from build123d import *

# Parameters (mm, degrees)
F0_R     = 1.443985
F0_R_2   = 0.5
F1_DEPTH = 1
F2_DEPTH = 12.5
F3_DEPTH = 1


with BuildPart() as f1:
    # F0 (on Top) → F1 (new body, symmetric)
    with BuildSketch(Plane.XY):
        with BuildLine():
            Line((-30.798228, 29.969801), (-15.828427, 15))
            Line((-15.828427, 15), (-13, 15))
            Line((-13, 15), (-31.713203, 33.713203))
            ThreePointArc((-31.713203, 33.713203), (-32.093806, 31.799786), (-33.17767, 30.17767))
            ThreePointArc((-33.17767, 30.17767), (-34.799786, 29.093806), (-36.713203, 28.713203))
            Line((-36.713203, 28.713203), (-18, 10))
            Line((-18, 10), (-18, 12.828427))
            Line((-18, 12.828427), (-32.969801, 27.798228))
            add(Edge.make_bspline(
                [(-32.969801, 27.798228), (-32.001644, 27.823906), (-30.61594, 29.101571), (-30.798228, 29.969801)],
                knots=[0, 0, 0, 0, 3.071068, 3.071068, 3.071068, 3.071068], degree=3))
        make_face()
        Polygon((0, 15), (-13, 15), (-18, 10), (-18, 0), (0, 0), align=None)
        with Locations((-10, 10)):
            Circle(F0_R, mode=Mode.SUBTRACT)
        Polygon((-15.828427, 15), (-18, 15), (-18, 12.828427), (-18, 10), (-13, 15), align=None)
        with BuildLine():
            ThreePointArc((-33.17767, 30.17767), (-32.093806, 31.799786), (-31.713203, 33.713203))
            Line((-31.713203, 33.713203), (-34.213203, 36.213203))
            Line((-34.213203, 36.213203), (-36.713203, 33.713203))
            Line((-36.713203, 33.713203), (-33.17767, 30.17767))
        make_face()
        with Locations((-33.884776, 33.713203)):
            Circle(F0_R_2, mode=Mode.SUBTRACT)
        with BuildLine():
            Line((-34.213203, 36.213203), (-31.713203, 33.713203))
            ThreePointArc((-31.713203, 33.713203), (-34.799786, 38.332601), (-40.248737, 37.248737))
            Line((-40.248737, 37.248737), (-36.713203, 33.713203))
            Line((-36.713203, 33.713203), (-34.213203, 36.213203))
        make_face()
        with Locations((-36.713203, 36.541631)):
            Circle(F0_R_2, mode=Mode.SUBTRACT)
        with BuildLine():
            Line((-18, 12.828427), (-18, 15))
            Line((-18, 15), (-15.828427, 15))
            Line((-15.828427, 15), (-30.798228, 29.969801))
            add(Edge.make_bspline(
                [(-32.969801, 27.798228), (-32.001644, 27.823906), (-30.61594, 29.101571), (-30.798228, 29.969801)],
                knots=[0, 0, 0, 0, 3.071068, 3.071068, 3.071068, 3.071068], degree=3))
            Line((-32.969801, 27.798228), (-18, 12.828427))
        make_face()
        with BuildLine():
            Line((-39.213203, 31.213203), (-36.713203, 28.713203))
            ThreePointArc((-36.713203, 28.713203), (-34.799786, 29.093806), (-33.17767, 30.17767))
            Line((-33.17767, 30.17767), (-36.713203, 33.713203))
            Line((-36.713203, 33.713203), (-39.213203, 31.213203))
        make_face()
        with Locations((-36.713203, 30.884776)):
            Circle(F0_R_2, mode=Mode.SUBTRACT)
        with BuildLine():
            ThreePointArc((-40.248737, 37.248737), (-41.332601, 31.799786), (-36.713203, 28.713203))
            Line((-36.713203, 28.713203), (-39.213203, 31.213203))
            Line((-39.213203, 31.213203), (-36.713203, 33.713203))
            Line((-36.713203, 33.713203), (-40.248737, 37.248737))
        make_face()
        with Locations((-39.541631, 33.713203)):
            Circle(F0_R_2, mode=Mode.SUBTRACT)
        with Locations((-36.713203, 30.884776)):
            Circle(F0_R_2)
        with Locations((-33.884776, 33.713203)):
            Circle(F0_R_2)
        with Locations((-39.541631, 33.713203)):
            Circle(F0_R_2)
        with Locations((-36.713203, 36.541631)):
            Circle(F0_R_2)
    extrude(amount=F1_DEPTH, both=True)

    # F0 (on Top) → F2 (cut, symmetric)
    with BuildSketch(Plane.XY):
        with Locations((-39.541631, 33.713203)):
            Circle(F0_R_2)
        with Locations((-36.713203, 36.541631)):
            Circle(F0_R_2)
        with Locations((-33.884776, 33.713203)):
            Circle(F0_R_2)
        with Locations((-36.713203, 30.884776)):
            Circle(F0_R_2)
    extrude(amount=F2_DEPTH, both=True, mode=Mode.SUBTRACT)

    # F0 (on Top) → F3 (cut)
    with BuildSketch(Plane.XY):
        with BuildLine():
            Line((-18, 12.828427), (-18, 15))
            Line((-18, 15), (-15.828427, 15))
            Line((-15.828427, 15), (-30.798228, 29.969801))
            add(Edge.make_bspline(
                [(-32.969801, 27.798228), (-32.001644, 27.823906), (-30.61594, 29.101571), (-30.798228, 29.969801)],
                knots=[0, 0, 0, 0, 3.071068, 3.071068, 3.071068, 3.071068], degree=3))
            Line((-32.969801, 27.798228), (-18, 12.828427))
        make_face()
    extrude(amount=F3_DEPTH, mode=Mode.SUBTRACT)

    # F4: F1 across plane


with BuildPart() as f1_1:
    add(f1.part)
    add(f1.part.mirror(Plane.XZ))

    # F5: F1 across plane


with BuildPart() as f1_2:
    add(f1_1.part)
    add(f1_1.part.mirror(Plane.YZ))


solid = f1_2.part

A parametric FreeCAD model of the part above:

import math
import FreeCAD as App
import Part
import Sketcher
from FreeCAD import Vector
Q = App.Units.Quantity

doc = App.newDocument("Part")
params = doc.addObject("Spreadsheet::Sheet", "Params")
for row, (alias, value) in enumerate([
    ("sketch1_radius", "5 mm"),
    ("sketch1_width", "18 mm"),
    ("sketch1_height", "10 mm"),
    ("pad1_length", "2 mm"),
    ("sketch2_diameter", "1 mm"),
    ("pocket1_length", "25 mm"),
    ("pocket2_length", "1 mm"),
], start=1):
    params.set(f"A{row}", alias)
    params.set(f"B{row}", "=" + value)
    params.setAlias(f"B{row}", alias)

body = doc.addObject("PartDesign::Body", "Body")

# Sketch on XY plane
sketch1 = body.newObject("Sketcher::SketchObject", "Sketch")
sketch1.AttachmentSupport = (doc.getObject("XY_Plane"), [""])
sketch1.MapMode = "FlatFace"
sketch1.addGeometry(Part.LineSegment(Vector(-13, 15, 0), Vector(-31.713203, 33.713203, 0)), False)
sketch1.addGeometry(Part.ArcOfCircle(Part.Circle(Vector(-36.713203, 33.713203, 0), Vector(0, 0, 1), 5), math.radians(-0.000003), math.radians(135.000003)), False)
sketch1.addGeometry(Part.ArcOfCircle(Part.Circle(Vector(-36.713203, 33.713203, 0), Vector(0, 0, 1), 5), math.radians(134.999997), math.radians(270.000003)), False)
sketch1.addGeometry(Part.LineSegment(Vector(-36.713203, 28.713203, 0), Vector(-18, 10, 0)), False)
sketch1.addGeometry(Part.LineSegment(Vector(-18, 10, 0), Vector(-18, 0, 0)), False)
sketch1.addGeometry(Part.LineSegment(Vector(-18, 0, 0), Vector(0, 0, 0)), False)
sketch1.addGeometry(Part.LineSegment(Vector(0, 0, 0), Vector(0, 15, 0)), False)
sketch1.addGeometry(Part.LineSegment(Vector(0, 15, 0), Vector(-13, 15, 0)), False)
sketch1.addGeometry(Part.Circle(Vector(-10, 10, 0), Vector(0, 0, 1), 1.443985), False)
sketch1.addConstraint(Sketcher.Constraint("Coincident", 0, 2, 1, 1))
sketch1.addConstraint(Sketcher.Constraint("Tangent", 1, 2, 2, 1))
sketch1.addConstraint(Sketcher.Constraint("Coincident", 2, 2, 3, 1))
sketch1.addConstraint(Sketcher.Constraint("Coincident", 3, 2, 4, 1))
sketch1.addConstraint(Sketcher.Constraint("Coincident", 4, 2, 5, 1))
sketch1.addConstraint(Sketcher.Constraint("Coincident", 5, 2, 6, 1))
sketch1.addConstraint(Sketcher.Constraint("Coincident", 6, 2, 7, 1))
sketch1.addConstraint(Sketcher.Constraint("Coincident", 7, 2, 0, 1))
sketch1.addConstraint(Sketcher.Constraint("Vertical", 4))
sketch1.addConstraint(Sketcher.Constraint("Horizontal", 5))
sketch1.addConstraint(Sketcher.Constraint("Vertical", 6))
sketch1.addConstraint(Sketcher.Constraint("Horizontal", 7))
sketch1.addConstraint(Sketcher.Constraint("Coincident", 5, 2, -1, 1))
sketch1.addConstraint(Sketcher.Constraint("Equal", 1, 2))
sketch1.addConstraint(Sketcher.Constraint("Parallel", 0, 3))
sketch1.addConstraint(Sketcher.Constraint("Horizontal", 2, 3, 0, 2))
sketch1.addConstraint(Sketcher.Constraint("Horizontal", 8, 3, 3, 2))
sketch1.addConstraint(Sketcher.Constraint("Vertical", 1, 3, 2, 2))
sketch1.addConstraint(Sketcher.Constraint("Equal", 0, 3))
sketch1.addConstraint(Sketcher.Constraint("Radius", 1, Q("5 mm")))
sketch1.addConstraint(Sketcher.Constraint("DistanceX", 5, 1, 5, 2, Q("18 mm")))
sketch1.addConstraint(Sketcher.Constraint("DistanceY", 4, 2, 4, 1, Q("10 mm")))
sketch1.addConstraint(Sketcher.Constraint("Angle", 0, Q("135 deg")))
sketch1.addConstraint(Sketcher.Constraint("DistanceX", 8, 3, -1, 1, Q("10 mm")))
sketch1.addConstraint(Sketcher.Constraint("Diameter", 8, Q("2.88797 mm")))
sketch1.addConstraint(Sketcher.Constraint("Distance", 0, Q("26.464465 mm")))
sketch1.addConstraint(Sketcher.Constraint("DistanceX", 1, 2, -1, 1, Q("40.248737 mm")))
sketch1.setExpression("Constraints[19]", "Params.sketch1_radius")
sketch1.setExpression("Constraints[20]", "Params.sketch1_width")
sketch1.setExpression("Constraints[21]", "Params.sketch1_height")
pad1 = body.newObject("PartDesign::Pad", "Pad")
pad1.Profile = sketch1
pad1.setExpression("Length", "Params.pad1_length")
pad1.Midplane = True

# Sketch on XY plane
sketch2 = body.newObject("Sketcher::SketchObject", "Sketch001")
sketch2.AttachmentSupport = (doc.getObject("XY_Plane"), [""])
sketch2.MapMode = "FlatFace"
sketch2.addGeometry(Part.Circle(Vector(-39.541631, 33.713203, 0), Vector(0, 0, 1), 0.5), False)
sketch2.addGeometry(Part.Circle(Vector(-36.713203, 36.541631, 0), Vector(0, 0, 1), 0.5), False)
sketch2.addGeometry(Part.Circle(Vector(-33.884776, 33.713203, 0), Vector(0, 0, 1), 0.5), False)
sketch2.addGeometry(Part.Circle(Vector(-36.713203, 30.884776, 0), Vector(0, 0, 1), 0.5), False)
sketch2.addConstraint(Sketcher.Constraint("Equal", 0, 1))
sketch2.addConstraint(Sketcher.Constraint("Equal", 1, 2))
sketch2.addConstraint(Sketcher.Constraint("Equal", 2, 3))
sketch2.addConstraint(Sketcher.Constraint("Horizontal", 0, 3, 2, 3))
sketch2.addConstraint(Sketcher.Constraint("Vertical", 1, 3, 3, 3))
sketch2.addConstraint(Sketcher.Constraint("Diameter", 0, Q("1 mm")))
sketch2.addConstraint(Sketcher.Constraint("DistanceX", 0, 3, -1, 1, Q("39.541631 mm")))
sketch2.addConstraint(Sketcher.Constraint("DistanceY", -1, 1, 1, 3, Q("36.541631 mm")))
sketch2.addConstraint(Sketcher.Constraint("DistanceX", 0, 3, 1, 3, Q("2.828428 mm")))
sketch2.addConstraint(Sketcher.Constraint("DistanceY", 0, 3, 1, 3, Q("2.828428 mm")))
sketch2.addConstraint(Sketcher.Constraint("DistanceX", 2, 3, -1, 1, Q("33.884776 mm")))
sketch2.addConstraint(Sketcher.Constraint("DistanceY", -1, 1, 3, 3, Q("30.884776 mm")))
sketch2.setExpression("Constraints[5]", "Params.sketch2_diameter")
pocket1 = body.newObject("PartDesign::Pocket", "Pocket")
pocket1.Profile = sketch2
pocket1.setExpression("Length", "Params.pocket1_length")
pocket1.Midplane = True

# Sketch on XY plane
sketch3 = body.newObject("Sketcher::SketchObject", "Sketch002")
sketch3.AttachmentSupport = (doc.getObject("XY_Plane"), [""])
sketch3.MapMode = "FlatFace"
sketch3.addGeometry(Part.LineSegment(Vector(-18, 12.828427, 0), Vector(-18, 15, 0)), False)
sketch3.addGeometry(Part.LineSegment(Vector(-18, 15, 0), Vector(-15.828427, 15, 0)), False)
sketch3.addGeometry(Part.LineSegment(Vector(-15.828427, 15, 0), Vector(-30.798228, 29.969801, 0)), False)
sketch3.addGeometry(Part.BSplineCurve([Vector(-32.969801, 27.798228, 0), Vector(-32.001644, 27.823906, 0), Vector(-30.61594, 29.101571, 0), Vector(-30.798228, 29.969801, 0)], [4, 4], [0, 3.071068], False, 3, [1, 1, 1, 1], False), False)
sketch3.addGeometry(Part.LineSegment(Vector(-32.969801, 27.798228, 0), Vector(-18, 12.828427, 0)), False)
sketch3.addConstraint(Sketcher.Constraint("Block", 3))
sketch3.addConstraint(Sketcher.Constraint("Coincident", 0, 2, 1, 1))
sketch3.addConstraint(Sketcher.Constraint("Coincident", 1, 2, 2, 1))
sketch3.addConstraint(Sketcher.Constraint("Coincident", 2, 2, 3, 2))
sketch3.addConstraint(Sketcher.Constraint("Coincident", 3, 1, 4, 1))
sketch3.addConstraint(Sketcher.Constraint("Coincident", 4, 2, 0, 1))
sketch3.addConstraint(Sketcher.Constraint("Vertical", 0))
sketch3.addConstraint(Sketcher.Constraint("Horizontal", 1))
sketch3.addConstraint(Sketcher.Constraint("DistanceX", 0, 2, -1, 1, Q("18 mm")))
sketch3.addConstraint(Sketcher.Constraint("DistanceY", -1, 1, 0, 2, Q("15 mm")))
sketch3.addConstraint(Sketcher.Constraint("DistanceX", 2, 2, 1, 2, Q("14.969801 mm")))
sketch3.addConstraint(Sketcher.Constraint("DistanceY", 0, 1, 0, 2, Q("2.171573 mm")))
pocket2 = body.newObject("PartDesign::Pocket", "Pocket001")
pocket2.Profile = sketch3
pocket2.setExpression("Length", "Params.pocket2_length")
pocket2.Reversed = True
body2 = doc.addObject("PartDesign::Body", "Body001")
doc.recompute()

body2.BaseFeature = body
doc.recompute()

mirroring = doc.addObject("Part::Mirroring", "Mirroring")
mirroring.Source = body
mirroring.Base = Vector(0, 0, 0)
mirroring.Normal = Vector(0, -1, 0)
body3 = doc.addObject("PartDesign::Body", "Body002")
body3.BaseFeature = mirroring
boolean = body2.newObject("PartDesign::Boolean", "Boolean")
boolean.Type = "Fuse"
boolean.addObjects([body3])
doc.recompute()
body4 = doc.addObject("PartDesign::Body", "Body003")
doc.recompute()

body4.BaseFeature = body2
doc.recompute()

mirroring2 = doc.addObject("Part::Mirroring", "Mirroring001")
mirroring2.Source = body2
mirroring2.Base = Vector(0, 0, 0)
mirroring2.Normal = Vector(1, 0, 0)
body5 = doc.addObject("PartDesign::Body", "Body004")
body5.BaseFeature = mirroring2
boolean2 = body4.newObject("PartDesign::Boolean", "Boolean001")
boolean2.Type = "Fuse"
boolean2.addObjects([body5])
doc.recompute()
mirroring.Visibility = False
mirroring2.Visibility = False

doc.recompute()
